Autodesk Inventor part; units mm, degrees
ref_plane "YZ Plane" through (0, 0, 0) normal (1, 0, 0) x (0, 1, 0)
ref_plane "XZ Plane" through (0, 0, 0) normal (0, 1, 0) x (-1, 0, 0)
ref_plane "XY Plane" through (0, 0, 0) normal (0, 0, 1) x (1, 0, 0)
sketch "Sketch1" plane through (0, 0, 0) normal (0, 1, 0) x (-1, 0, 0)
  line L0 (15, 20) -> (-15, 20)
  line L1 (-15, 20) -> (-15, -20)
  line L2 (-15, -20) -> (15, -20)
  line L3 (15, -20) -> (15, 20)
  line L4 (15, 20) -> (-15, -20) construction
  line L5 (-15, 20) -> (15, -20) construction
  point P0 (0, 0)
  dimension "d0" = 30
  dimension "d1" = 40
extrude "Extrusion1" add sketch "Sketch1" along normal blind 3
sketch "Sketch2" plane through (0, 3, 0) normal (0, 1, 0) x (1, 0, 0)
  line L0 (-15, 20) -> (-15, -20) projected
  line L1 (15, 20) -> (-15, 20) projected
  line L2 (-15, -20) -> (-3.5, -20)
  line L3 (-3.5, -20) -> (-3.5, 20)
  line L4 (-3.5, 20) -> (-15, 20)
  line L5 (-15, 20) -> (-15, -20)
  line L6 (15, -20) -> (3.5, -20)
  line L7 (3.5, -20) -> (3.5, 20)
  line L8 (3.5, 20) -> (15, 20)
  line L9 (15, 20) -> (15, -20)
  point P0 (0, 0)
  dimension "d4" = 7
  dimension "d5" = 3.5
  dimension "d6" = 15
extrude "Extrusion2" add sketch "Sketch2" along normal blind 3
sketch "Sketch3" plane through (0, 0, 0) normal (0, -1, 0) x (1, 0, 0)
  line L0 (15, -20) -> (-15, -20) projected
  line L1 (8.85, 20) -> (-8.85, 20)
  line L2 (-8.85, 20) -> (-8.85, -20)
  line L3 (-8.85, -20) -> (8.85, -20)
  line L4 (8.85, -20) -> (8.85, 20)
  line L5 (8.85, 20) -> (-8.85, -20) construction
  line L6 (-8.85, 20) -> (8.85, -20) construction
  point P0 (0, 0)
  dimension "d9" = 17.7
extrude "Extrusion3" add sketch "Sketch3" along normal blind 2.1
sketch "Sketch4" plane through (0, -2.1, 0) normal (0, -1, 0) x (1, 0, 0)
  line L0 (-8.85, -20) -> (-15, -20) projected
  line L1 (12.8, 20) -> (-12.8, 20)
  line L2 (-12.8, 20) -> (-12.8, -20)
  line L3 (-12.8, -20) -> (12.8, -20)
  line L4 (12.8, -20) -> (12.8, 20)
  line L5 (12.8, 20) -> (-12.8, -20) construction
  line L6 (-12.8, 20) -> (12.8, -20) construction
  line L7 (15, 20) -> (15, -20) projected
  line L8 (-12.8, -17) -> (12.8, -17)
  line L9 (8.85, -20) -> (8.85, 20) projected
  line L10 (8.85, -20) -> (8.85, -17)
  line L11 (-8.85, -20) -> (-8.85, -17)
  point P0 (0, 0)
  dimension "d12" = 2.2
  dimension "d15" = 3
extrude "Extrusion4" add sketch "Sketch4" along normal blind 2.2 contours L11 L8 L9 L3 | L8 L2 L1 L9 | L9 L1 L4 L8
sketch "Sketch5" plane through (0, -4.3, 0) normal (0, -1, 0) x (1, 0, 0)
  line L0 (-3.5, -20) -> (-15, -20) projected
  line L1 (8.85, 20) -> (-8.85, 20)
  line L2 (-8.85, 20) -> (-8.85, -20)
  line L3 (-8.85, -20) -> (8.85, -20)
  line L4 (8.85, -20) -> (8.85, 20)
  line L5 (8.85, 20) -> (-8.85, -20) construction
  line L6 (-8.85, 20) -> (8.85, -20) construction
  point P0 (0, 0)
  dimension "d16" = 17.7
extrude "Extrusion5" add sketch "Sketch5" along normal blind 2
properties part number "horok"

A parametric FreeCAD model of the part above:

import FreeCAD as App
import Part
import Sketcher
from FreeCAD import Vector

doc = App.newDocument("Part")
body = doc.addObject("PartDesign::Body", "Body")

# Sketch on XZ plane
sketch1 = body.newObject("Sketcher::SketchObject", "Sketch")
sketch1.AttachmentSupport = (doc.getObject("XZ_Plane"), [""])
sketch1.MapMode = "FlatFace"
sketch1.addGeometry([
    Part.LineSegment(Vector(-15, -20, 0), Vector(-15, 20, 0)),
    Part.LineSegment(Vector(-15, 20, 0), Vector(15, 20, 0)),
    Part.LineSegment(Vector(15, 20, 0), Vector(15, -20, 0)),
    Part.LineSegment(Vector(15, -20, 0), Vector(-15, -20, 0)),
], False)
sketch1.addConstraint([
    Sketcher.Constraint("Coincident", 0, 2, 1, 1),
    Sketcher.Constraint("Coincident", 1, 2, 2, 1),
    Sketcher.Constraint("Coincident", 2, 2, 3, 1),
    Sketcher.Constraint("Coincident", 3, 2, 0, 1),
    Sketcher.Constraint("Vertical", 0),
    Sketcher.Constraint("Horizontal", 1),
    Sketcher.Constraint("Vertical", 2),
    Sketcher.Constraint("Horizontal", 3),
    Sketcher.Constraint("Symmetric", 0, 2, 2, 2, -1, 1),
    Sketcher.Constraint("DistanceX", 1, 1, 1, 2, 30.0),
    Sketcher.Constraint("DistanceY", 0, 1, 0, 2, 40.0),
])
pad1 = body.newObject("PartDesign::Pad", "Pad")
pad1.Profile = sketch1
pad1.Length = 3
pad1.Reversed = True

# Sketch on XZ plane
sketch2 = body.newObject("Sketcher::SketchObject", "Sketch001")
sketch2.AttachmentSupport = (doc.getObject("XZ_Plane"), [""])
sketch2.MapMode = "FlatFace"
sketch2.AttachmentOffset = App.Placement(Vector(0, 0, -3), App.Rotation())
sketch2.addGeometry([
    Part.LineSegment(Vector(-4, -20, 0), Vector(-15, -20, 0)),  # 0
    Part.LineSegment(Vector(-15, -20, 0), Vector(-15, 20, 0)),  # 1
    Part.LineSegment(Vector(-15, 20, 0), Vector(-4, 20, 0)),  # 2
    Part.LineSegment(Vector(-4, 20, 0), Vector(-4, -20, 0)),  # 3
    Part.LineSegment(Vector(15, -20, 0), Vector(4, -20, 0)),  # 4
    Part.LineSegment(Vector(4, -20, 0), Vector(4, 20, 0)),  # 5
    Part.LineSegment(Vector(4, 20, 0), Vector(15, 20, 0)),  # 6
    Part.LineSegment(Vector(15, 20, 0), Vector(15, -20, 0)),  # 7
], False)
sketch2.addConstraint([
    Sketcher.Constraint("Coincident", 0, 2, 1, 1),
    Sketcher.Constraint("Coincident", 1, 2, 2, 1),
    Sketcher.Constraint("Coincident", 2, 2, 3, 1),
    Sketcher.Constraint("Coincident", 3, 2, 0, 1),
    Sketcher.Constraint("Coincident", 4, 2, 5, 1),
    Sketcher.Constraint("Coincident", 5, 2, 6, 1),
    Sketcher.Constraint("Coincident", 6, 2, 7, 1),
    Sketcher.Constraint("Coincident", 7, 2, 4, 1),
    Sketcher.Constraint("Horizontal", 0),
    Sketcher.Constraint("Vertical", 1),
    Sketcher.Constraint("Horizontal", 2),
    Sketcher.Constraint("Vertical", 3),
    Sketcher.Constraint("Horizontal", 4),
    Sketcher.Constraint("Vertical", 5),
    Sketcher.Constraint("Horizontal", 6),
    Sketcher.Constraint("Vertical", 7),
    Sketcher.Constraint("Symmetric", 2, 2, 4, 2, -1, 1),
    Sketcher.Constraint("Symmetric", 0, 2, 6, 2, -1, 1),
    Sketcher.Constraint("Horizontal", 3, 2, 4, 2),
    Sketcher.Constraint("DistanceX", 0, 2, -1, 1, 15.0),
    Sketcher.Constraint("DistanceX", 3, 2, 4, 2, 7.0),
    Sketcher.Constraint("DistanceY", 1, 1, 1, 2, 40.0),
])
pad2 = body.newObject("PartDesign::Pad", "Pad001")
pad2.Profile = sketch2
pad2.Length = 3
pad2.Reversed = True

# Sketch on XZ plane
sketch3 = body.newObject("Sketcher::SketchObject", "Sketch002")
sketch3.AttachmentSupport = (doc.getObject("XZ_Plane"), [""])
sketch3.MapMode = "FlatFace"
sketch3.addGeometry([
    Part.LineSegment(Vector(-9, -20, 0), Vector(9, -20, 0)),
    Part.LineSegment(Vector(9, -20, 0), Vector(9, 20, 0)),
    Part.LineSegment(Vector(9, 20, 0), Vector(-9, 20, 0)),
    Part.LineSegment(Vector(-9, 20, 0), Vector(-9, -20, 0)),
], False)
sketch3.addConstraint([
    Sketcher.Constraint("Coincident", 0, 2, 1, 1),
    Sketcher.Constraint("Coincident", 1, 2, 2, 1),
    Sketcher.Constraint("Coincident", 2, 2, 3, 1),
    Sketcher.Constraint("Coincident", 3, 2, 0, 1),
    Sketcher.Constraint("Horizontal", 0),
    Sketcher.Constraint("Vertical", 1),
    Sketcher.Constraint("Horizontal", 2),
    Sketcher.Constraint("Vertical", 3),
    Sketcher.Constraint("Symmetric", 0, 2, 2, 2, -1, 1),
    Sketcher.Constraint("DistanceX", 0, 1, 0, 2, 17.7),
    Sketcher.Constraint("DistanceY", 1, 1, 1, 2, 40.0),
])
pad3 = body.newObject("PartDesign::Pad", "Pad002")
pad3.Profile = sketch3
pad3.Length = 2.1

# Sketch on XZ plane
sketch4 = body.newObject("Sketcher::SketchObject", "Sketch003")
sketch4.AttachmentSupport = (doc.getObject("XZ_Plane"), [""])
sketch4.MapMode = "FlatFace"
sketch4.AttachmentOffset = App.Placement(Vector(0, 0, 2.1), App.Rotation())
sketch4.addGeometry([
    Part.LineSegment(Vector(-8.8, -17, 0), Vector(-8.8, -20, 0)),  # 0
    Part.LineSegment(Vector(-8.8, -20, 0), Vector(8.8, -20, 0)),  # 1
    Part.LineSegment(Vector(8.8, -20, 0), Vector(8.8, -17, 0)),  # 2
    Part.LineSegment(Vector(8.8, -17, 0), Vector(12.8, -17, 0)),  # 3
    Part.LineSegment(Vector(12.8, -17, 0), Vector(12.8, 20, 0)),  # 4
    Part.LineSegment(Vector(12.8, 20, 0), Vector(-12.8, 20, 0)),  # 5
    Part.LineSegment(Vector(-12.8, 20, 0), Vector(-12.8, -17, 0)),  # 6
    Part.LineSegment(Vector(-12.8, -17, 0), Vector(-8.8, -17, 0)),  # 7
], False)
sketch4.addConstraint([
    Sketcher.Constraint("Coincident", 0, 2, 1, 1),
    Sketcher.Constraint("Coincident", 1, 2, 2, 1),
    Sketcher.Constraint("Coincident", 2, 2, 3, 1),
    Sketcher.Constraint("Coincident", 3, 2, 4, 1),
    Sketcher.Constraint("Coincident", 4, 2, 5, 1),
    Sketcher.Constraint("Coincident", 5, 2, 6, 1),
    Sketcher.Constraint("Coincident", 6, 2, 7, 1),
    Sketcher.Constraint("Coincident", 7, 2, 0, 1),
    Sketcher.Constraint("Vertical", 0),
    Sketcher.Constraint("Horizontal", 1),
    Sketcher.Constraint("Vertical", 2),
    Sketcher.Constraint("Horizontal", 3),
    Sketcher.Constraint("Vertical", 4),
    Sketcher.Constraint("Horizontal", 5),
    Sketcher.Constraint("Vertical", 6),
    Sketcher.Constraint("Horizontal", 7),
    Sketcher.Constraint("Symmetric", 3, 2, 6, 2, -2),
    Sketcher.Constraint("Equal", 3, 7),
    Sketcher.Constraint("DistanceY", 0, 2, 0, 1, 3.0),
    Sketcher.Constraint("DistanceY", 4, 1, 4, 2, 37.0),
    Sketcher.Constraint("DistanceX", 1, 1, 1, 2, 17.7),
    Sketcher.Constraint("DistanceX", 5, 2, 5, 1, 25.6),
    Sketcher.Constraint("DistanceY", 0, 2, -1, 1, 20.0),
])
pad4 = body.newObject("PartDesign::Pad", "Pad003")
pad4.Profile = sketch4
pad4.Length = 2.2

# Sketch on XZ plane
sketch5 = body.newObject("Sketcher::SketchObject", "Sketch004")
sketch5.AttachmentSupport = (doc.getObject("XZ_Plane"), [""])
sketch5.MapMode = "FlatFace"
sketch5.AttachmentOffset = App.Placement(Vector(0, 0, 4.3), App.Rotation())
sketch5.addGeometry([
    Part.LineSegment(Vector(-9, -20, 0), Vector(9, -20, 0)),
    Part.LineSegment(Vector(9, -20, 0), Vector(9, 20, 0)),
    Part.LineSegment(Vector(9, 20, 0), Vector(-9, 20, 0)),
    Part.LineSegment(Vector(-9, 20, 0), Vector(-9, -20, 0)),
], False)
sketch5.addConstraint([
    Sketcher.Constraint("Coincident", 0, 2, 1, 1),
    Sketcher.Constraint("Coincident", 1, 2, 2, 1),
    Sketcher.Constraint("Coincident", 2, 2, 3, 1),
    Sketcher.Constraint("Coincident", 3, 2, 0, 1),
    Sketcher.Constraint("Horizontal", 0),
    Sketcher.Constraint("Vertical", 1),
    Sketcher.Constraint("Horizontal", 2),
    Sketcher.Constraint("Vertical", 3),
    Sketcher.Constraint("Symmetric", 0, 2, 2, 2, -1, 1),
    Sketcher.Constraint("DistanceX", 0, 1, 0, 2, 17.7),
    Sketcher.Constraint("DistanceY", 1, 1, 1, 2, 40.0),
])
pad5 = body.newObject("PartDesign::Pad", "Pad004")
pad5.Profile = sketch5
pad5.Length = 2

doc.recompute()
